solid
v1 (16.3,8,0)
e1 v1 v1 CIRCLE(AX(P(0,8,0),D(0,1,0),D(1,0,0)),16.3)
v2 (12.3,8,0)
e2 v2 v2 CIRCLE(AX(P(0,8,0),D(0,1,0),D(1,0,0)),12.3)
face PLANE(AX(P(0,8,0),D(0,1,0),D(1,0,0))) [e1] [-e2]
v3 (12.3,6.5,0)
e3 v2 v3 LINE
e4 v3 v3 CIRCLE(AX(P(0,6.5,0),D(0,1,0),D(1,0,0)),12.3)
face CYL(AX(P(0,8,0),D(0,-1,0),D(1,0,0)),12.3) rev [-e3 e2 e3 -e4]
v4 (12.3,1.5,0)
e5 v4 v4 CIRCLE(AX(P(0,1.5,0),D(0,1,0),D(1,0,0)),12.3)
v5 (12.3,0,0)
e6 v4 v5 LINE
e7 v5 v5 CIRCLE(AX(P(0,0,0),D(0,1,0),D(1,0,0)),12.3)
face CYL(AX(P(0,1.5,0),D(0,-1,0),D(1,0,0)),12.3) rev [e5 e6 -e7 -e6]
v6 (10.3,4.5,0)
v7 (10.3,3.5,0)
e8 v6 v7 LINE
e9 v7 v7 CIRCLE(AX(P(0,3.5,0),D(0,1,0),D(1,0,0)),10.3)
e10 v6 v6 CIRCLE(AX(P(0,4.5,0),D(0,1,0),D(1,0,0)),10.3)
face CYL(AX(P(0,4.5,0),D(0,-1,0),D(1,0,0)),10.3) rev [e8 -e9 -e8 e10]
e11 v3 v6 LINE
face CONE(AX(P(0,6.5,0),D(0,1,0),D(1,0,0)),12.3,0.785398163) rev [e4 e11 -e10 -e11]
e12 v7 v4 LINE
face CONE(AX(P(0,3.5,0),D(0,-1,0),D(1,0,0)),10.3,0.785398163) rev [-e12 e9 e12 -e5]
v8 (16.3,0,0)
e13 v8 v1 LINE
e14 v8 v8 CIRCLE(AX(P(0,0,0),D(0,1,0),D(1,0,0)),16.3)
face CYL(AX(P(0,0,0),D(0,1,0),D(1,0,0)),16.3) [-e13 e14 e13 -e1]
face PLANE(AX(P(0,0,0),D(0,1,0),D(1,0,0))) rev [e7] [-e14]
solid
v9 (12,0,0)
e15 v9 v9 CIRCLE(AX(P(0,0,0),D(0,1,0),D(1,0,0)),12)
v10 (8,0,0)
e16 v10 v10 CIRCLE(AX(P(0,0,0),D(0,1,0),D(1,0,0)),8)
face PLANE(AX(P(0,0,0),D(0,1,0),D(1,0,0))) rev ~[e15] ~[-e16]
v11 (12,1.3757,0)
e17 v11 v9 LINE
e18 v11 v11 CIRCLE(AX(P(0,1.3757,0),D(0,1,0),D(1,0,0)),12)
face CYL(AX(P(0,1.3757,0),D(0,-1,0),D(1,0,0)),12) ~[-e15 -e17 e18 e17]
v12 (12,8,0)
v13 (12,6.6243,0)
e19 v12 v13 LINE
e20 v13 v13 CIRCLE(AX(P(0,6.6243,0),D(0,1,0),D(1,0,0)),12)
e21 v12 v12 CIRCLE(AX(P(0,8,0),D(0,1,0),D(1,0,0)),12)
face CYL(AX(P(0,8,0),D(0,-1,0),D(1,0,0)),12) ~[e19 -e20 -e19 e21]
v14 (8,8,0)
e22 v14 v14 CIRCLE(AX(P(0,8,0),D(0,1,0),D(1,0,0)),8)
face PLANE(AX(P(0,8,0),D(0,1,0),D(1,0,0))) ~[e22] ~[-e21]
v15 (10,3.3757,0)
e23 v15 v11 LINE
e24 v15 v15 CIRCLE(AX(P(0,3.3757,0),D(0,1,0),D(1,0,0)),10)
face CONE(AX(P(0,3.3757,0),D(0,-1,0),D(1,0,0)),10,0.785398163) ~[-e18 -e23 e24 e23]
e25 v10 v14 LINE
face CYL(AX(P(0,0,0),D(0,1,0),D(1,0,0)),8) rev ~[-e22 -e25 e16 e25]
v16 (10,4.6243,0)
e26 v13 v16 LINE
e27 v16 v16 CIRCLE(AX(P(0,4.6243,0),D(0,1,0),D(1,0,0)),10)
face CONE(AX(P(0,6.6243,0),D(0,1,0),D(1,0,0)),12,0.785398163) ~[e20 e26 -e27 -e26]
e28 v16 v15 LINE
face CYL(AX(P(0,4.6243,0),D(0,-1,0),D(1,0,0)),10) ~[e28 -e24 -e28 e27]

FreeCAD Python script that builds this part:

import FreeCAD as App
import Part
import Sketcher

V = App.Vector
Q = App.Units.Quantity


def add_polygon(sketch, points):
    """Adds a closed chain of lines whose ends are joined by coincident constraints."""
    first, n = sketch.GeometryCount, len(points)
    for a, b in zip(points, points[1:] + points[:1]):
        sketch.addGeometry(Part.LineSegment(App.Vector(*a, 0), App.Vector(*b, 0)), False)
    for i in range(n):
        sketch.addConstraint(Sketcher.Constraint("Coincident", first + i, 2, first + (i + 1) % n, 1))

doc = App.newDocument("Part")
body = doc.addObject("PartDesign::Body", "Body")
body.AllowCompound = True

# Sketch on XY plane
sketch1 = body.newObject("Sketcher::SketchObject", "Sketch")
sketch1.AttachmentSupport = (doc.getObject("XY_Plane"), [""])
sketch1.MapMode = "FlatFace"
add_polygon(sketch1, [(8, 8), (8, 0), (12, 0), (12, 1.4), (10, 3.4), (10, 4.6), (12, 6.6), (12, 8)])  # lines 0-7
add_polygon(sketch1, [(16.3, 8), (12.3, 8), (12.3, 6.5), (10.3, 4.5), (10.3, 3.5), (12.3, 1.5), (12.3, 0), (16.3, 0)])  # lines 8-15
sketch1.addConstraint([
    Sketcher.Constraint("Vertical", 0),
    Sketcher.Constraint("Horizontal", 1),
    Sketcher.Constraint("Vertical", 2),
    Sketcher.Constraint("Vertical", 4),
    Sketcher.Constraint("Vertical", 6),
    Sketcher.Constraint("Horizontal", 7),
    Sketcher.Constraint("Horizontal", 8),
    Sketcher.Constraint("Vertical", 9),
    Sketcher.Constraint("Vertical", 11),
    Sketcher.Constraint("Vertical", 13),
    Sketcher.Constraint("Horizontal", 14),
    Sketcher.Constraint("Vertical", 15),
    Sketcher.Constraint("PointOnObject", 0, 2, -1),
    Sketcher.Constraint("PointOnObject", 13, 2, -1),
    Sketcher.Constraint("Perpendicular", 3, 5),
    Sketcher.Constraint("Parallel", 5, 10),
    Sketcher.Constraint("Perpendicular", 10, 12),
    Sketcher.Constraint("Horizontal", 7, 2, 8, 2),
    Sketcher.Constraint("Vertical", 2, 2, 5, 2),
    Sketcher.Constraint("Vertical", 9, 2, 12, 2),
    Sketcher.Constraint("Equal", 7, 8),
    Sketcher.Constraint("Equal", 2, 6),
    Sketcher.Constraint("Equal", 9, 13),
    Sketcher.Constraint("Equal", 3, 5),
    Sketcher.Constraint("Equal", 5, 10),
    Sketcher.Constraint("DistanceX", 1, 1, 1, 2, Q("4 mm")),
    Sketcher.Constraint("DistanceY", 0, 2, 0, 1, Q("8 mm")),
    Sketcher.Constraint("DistanceY", 11, 2, 11, 1, Q("1 mm")),
    Sketcher.Constraint("DistanceY", 9, 2, 9, 1, Q("1.5 mm")),
    Sketcher.Constraint("DistanceX", -1, 1, 0, 2, Q("8 mm")),
    Sketcher.Constraint("DistanceX", 6, 2, 8, 2, Q("0.3 mm")),
    Sketcher.Constraint("DistanceY", 2, 1, 2, 2, Q("1.3757 mm")),
])
revolution = body.newObject("PartDesign::Revolution", "Revolution")
revolution.Profile = sketch1
revolution.ReferenceAxis = (sketch1, ["V_Axis"])
revolution.Angle = 360

doc.recompute()
